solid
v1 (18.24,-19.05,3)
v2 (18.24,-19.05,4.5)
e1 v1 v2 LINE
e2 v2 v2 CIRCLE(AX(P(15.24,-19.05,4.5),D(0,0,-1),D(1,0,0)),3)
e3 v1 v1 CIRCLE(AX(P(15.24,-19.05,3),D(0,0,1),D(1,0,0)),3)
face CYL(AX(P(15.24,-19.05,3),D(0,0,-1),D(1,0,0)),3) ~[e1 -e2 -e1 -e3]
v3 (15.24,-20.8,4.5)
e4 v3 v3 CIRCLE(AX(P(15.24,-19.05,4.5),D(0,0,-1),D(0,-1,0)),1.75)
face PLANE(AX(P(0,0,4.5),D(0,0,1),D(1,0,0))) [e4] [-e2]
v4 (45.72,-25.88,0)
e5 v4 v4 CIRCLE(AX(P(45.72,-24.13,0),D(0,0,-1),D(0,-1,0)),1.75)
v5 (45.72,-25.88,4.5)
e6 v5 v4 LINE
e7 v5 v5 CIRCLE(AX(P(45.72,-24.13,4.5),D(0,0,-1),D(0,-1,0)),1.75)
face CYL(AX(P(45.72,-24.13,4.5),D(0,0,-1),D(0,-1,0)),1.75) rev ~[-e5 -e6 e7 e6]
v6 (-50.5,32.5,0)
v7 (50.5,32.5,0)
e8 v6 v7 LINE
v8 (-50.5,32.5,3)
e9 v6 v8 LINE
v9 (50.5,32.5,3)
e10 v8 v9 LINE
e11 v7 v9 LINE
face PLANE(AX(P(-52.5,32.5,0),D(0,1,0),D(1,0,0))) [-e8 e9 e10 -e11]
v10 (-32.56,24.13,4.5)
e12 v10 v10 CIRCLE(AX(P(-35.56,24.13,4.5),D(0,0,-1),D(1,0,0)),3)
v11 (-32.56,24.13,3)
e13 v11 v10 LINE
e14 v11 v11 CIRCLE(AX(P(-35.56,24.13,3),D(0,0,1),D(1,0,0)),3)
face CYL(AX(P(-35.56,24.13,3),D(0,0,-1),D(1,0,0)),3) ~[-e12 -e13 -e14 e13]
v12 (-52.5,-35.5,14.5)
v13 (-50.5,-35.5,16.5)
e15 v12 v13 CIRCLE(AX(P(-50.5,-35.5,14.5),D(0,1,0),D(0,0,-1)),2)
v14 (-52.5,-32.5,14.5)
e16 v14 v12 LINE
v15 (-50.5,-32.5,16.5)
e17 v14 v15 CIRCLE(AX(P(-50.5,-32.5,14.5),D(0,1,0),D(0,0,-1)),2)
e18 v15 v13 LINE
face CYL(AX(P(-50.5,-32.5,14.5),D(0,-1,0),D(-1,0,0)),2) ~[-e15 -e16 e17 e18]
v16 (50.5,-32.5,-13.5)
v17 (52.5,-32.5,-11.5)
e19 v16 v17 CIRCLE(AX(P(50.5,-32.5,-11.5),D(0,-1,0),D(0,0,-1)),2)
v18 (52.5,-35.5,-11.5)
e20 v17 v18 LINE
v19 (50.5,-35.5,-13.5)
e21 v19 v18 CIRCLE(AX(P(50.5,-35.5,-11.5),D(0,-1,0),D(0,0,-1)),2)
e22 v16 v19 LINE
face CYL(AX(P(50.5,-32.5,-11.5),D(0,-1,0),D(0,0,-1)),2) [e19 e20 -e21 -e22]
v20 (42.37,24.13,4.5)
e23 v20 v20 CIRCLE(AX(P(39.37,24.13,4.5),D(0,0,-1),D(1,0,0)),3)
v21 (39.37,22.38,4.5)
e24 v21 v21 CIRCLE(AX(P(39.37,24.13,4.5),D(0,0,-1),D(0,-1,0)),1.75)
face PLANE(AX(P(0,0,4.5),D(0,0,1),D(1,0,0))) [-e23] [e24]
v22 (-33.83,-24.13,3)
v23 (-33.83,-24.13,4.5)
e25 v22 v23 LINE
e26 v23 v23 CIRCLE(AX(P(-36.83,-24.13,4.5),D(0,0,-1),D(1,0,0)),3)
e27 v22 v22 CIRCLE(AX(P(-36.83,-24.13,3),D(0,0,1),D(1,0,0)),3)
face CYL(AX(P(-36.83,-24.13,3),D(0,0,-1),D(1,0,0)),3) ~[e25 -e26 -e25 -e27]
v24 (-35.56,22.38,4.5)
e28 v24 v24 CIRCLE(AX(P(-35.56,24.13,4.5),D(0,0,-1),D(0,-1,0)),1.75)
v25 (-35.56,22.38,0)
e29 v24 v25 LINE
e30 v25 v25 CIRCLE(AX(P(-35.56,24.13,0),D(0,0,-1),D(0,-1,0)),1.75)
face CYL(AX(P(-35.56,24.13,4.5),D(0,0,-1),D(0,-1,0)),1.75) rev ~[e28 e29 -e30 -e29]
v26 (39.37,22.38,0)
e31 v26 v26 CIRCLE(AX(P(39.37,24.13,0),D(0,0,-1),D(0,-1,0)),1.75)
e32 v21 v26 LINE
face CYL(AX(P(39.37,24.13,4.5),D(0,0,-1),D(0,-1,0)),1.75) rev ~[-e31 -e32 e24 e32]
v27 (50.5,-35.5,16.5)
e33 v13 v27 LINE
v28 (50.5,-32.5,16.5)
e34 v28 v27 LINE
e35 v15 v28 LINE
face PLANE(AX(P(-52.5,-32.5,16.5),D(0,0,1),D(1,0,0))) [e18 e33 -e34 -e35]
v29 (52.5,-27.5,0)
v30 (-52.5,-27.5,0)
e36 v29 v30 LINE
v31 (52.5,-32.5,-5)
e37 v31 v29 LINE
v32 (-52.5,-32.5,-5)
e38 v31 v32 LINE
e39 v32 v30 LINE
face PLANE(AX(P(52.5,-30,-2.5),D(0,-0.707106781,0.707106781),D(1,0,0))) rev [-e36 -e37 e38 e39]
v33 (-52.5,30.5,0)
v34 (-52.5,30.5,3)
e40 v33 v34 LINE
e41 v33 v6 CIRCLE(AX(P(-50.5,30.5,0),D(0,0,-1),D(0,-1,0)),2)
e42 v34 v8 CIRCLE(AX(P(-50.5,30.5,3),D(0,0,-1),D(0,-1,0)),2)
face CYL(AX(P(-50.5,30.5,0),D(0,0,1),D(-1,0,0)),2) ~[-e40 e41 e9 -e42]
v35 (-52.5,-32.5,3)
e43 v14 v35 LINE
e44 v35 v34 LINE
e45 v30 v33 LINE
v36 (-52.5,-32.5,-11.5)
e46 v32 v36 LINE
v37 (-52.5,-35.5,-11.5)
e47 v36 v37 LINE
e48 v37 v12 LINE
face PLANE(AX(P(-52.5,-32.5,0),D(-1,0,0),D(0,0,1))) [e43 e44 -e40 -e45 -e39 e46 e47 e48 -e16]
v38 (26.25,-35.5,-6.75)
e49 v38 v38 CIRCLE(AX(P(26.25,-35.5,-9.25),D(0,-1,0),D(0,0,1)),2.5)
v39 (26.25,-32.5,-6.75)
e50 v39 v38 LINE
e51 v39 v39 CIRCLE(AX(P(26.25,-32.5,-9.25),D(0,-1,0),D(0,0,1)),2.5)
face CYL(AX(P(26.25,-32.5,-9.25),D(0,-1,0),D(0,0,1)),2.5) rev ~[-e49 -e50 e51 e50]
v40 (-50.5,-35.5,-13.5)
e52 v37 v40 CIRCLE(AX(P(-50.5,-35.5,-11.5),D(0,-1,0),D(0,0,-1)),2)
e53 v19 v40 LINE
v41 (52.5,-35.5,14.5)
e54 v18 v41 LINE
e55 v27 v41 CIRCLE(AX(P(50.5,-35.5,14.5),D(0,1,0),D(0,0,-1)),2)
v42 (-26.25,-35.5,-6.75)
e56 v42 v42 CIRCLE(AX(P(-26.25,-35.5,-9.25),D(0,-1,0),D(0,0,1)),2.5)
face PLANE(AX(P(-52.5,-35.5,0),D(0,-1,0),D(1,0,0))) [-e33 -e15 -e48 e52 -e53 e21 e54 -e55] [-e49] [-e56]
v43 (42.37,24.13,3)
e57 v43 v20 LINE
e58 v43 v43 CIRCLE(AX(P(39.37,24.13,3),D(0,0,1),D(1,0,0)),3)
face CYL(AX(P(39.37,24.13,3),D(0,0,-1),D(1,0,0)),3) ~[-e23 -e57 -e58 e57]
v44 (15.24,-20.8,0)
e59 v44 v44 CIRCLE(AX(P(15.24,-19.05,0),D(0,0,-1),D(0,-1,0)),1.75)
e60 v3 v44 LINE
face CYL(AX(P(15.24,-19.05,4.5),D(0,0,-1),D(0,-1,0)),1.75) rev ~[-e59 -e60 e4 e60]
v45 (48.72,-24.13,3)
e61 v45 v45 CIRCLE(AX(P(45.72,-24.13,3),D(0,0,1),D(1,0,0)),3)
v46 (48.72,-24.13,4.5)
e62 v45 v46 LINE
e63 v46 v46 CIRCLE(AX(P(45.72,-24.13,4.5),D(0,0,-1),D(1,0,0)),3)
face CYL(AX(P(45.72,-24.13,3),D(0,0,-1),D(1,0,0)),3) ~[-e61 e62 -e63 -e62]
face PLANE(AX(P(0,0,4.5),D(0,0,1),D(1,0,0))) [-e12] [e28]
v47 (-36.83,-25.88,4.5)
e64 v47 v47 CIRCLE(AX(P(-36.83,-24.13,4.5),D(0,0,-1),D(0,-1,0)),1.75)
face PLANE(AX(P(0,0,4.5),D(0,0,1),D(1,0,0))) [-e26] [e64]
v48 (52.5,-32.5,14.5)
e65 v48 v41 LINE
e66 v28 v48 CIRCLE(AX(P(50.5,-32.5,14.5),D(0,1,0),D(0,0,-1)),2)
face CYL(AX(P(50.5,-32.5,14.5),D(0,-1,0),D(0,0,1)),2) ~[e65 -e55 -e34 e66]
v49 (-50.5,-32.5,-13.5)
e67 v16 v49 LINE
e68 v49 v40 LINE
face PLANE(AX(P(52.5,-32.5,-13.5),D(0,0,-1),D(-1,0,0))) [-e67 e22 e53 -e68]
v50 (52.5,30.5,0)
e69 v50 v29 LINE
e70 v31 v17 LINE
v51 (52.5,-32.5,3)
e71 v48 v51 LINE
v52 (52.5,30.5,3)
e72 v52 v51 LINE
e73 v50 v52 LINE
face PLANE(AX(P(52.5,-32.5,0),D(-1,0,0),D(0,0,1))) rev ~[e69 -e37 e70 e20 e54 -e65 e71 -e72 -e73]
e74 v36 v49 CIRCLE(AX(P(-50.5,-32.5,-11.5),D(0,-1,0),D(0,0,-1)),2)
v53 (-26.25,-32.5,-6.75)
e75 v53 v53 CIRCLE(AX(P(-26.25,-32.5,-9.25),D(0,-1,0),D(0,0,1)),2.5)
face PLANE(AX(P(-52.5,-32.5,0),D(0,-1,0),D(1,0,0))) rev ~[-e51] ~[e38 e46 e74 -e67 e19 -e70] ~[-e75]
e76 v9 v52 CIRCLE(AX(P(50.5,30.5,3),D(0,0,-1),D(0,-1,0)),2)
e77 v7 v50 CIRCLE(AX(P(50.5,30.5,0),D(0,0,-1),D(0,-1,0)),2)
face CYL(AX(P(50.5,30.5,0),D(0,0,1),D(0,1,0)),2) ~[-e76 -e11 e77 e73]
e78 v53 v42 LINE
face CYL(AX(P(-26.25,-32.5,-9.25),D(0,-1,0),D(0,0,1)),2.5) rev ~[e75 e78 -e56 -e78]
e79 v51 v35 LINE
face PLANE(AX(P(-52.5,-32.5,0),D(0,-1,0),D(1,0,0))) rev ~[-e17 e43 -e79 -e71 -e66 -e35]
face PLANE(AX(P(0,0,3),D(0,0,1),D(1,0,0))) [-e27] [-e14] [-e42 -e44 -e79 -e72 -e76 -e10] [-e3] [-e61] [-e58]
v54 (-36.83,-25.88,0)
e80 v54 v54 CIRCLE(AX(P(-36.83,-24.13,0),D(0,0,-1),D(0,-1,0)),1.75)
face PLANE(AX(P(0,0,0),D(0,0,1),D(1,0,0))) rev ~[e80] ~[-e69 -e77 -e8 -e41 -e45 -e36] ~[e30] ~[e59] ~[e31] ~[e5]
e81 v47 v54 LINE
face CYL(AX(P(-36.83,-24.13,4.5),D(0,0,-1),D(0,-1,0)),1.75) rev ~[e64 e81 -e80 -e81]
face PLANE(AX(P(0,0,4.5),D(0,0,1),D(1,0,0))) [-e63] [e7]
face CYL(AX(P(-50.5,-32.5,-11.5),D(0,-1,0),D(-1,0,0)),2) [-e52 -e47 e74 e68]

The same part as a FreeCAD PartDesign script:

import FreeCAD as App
import Part
import Sketcher

V = App.Vector
Q = App.Units.Quantity


def edges_at(feature, points):
    """Names of the edges that pass closest to the given points."""
    edges = feature.Shape.Edges
    near = lambda p: min(range(len(edges)), key=lambda i: edges[i].distToShape(Part.Vertex(*p))[0])
    return sorted({f"Edge{near(p) + 1}" for p in points})


def add_polygon(sketch, points):
    """Adds a closed chain of lines whose ends are joined by coincident constraints."""
    first, n = sketch.GeometryCount, len(points)
    for a, b in zip(points, points[1:] + points[:1]):
        sketch.addGeometry(Part.LineSegment(App.Vector(*a, 0), App.Vector(*b, 0)), False)
    for i in range(n):
        sketch.addConstraint(Sketcher.Constraint("Coincident", first + i, 2, first + (i + 1) % n, 1))

doc = App.newDocument("Part")
body = doc.addObject("PartDesign::Body", "Body")

# Sketch on XY plane
sketch1 = doc.addObject("Sketcher::SketchObject", "Sketch")
body.addObject(sketch1)
sketch1.AttachmentSupport = (doc.XY_Plane, [""])
sketch1.MapMode = "FlatFace"
add_polygon(sketch1, [(52, 32), (-52, 32), (-52, -32), (52, -32)])  # lines 0-3
sketch1.addConstraint([
    Sketcher.Constraint("Horizontal", 0),
    Sketcher.Constraint("Vertical", 1),
    Sketcher.Constraint("Horizontal", 2),
    Sketcher.Constraint("Vertical", 3),
    Sketcher.Constraint("Symmetric", 0, 2, 2, 2, -1, 1),
    Sketcher.Constraint("DistanceX", 0, 2, 0, 1, Q("105 mm")),
    Sketcher.Constraint("DistanceY", 1, 2, 1, 1, Q("65 mm")),
])
pad1 = doc.addObject("PartDesign::Pad", "Pad")
body.addObject(pad1)
pad1.Profile = sketch1
pad1.Length = 3

# Sketch on XY plane
sketch2 = doc.addObject("Sketcher::SketchObject", "Sketch001")
body.addObject(sketch2)
sketch2.AttachmentSupport = (doc.XY_Plane, [""])
sketch2.MapMode = "FlatFace"
sketch2.AttachmentOffset = App.Placement(V(0, 0, 3), App.Rotation())
sketch2.addGeometry([
    Part.Circle(V(-35.6, 24.1, 0), V(0, 0, 1), 3),  # 0
    Part.Circle(V(39.4, 24.1, 0), V(0, 0, 1), 3),  # 1
    Part.Circle(V(-36.8, -24.1, 0), V(0, 0, 1), 3),  # 2
    Part.Circle(V(15.2, -19.1, 0), V(0, 0, 1), 3),  # 3
    Part.Circle(V(45.7, -24.1, 0), V(0, 0, 1), 3),  # 4
], False)
sketch2.addConstraint([
    Sketcher.Constraint("Equal", 0, 1),
    Sketcher.Constraint("Equal", 1, 2),
    Sketcher.Constraint("Equal", 2, 3),
    Sketcher.Constraint("Equal", 3, 4),
    Sketcher.Constraint("Horizontal", 0, 3, 1, 3),
    Sketcher.Constraint("Horizontal", 2, 3, 4, 3),
    Sketcher.Constraint("Diameter", 0, Q("6 mm")),
    Sketcher.Constraint("DistanceX", 0, 3, 3, 3, Q("50.8 mm")),
    Sketcher.Constraint("DistanceX", -1, 1, 3, 3, Q("15.24 mm")),
    Sketcher.Constraint("DistanceX", 2, 3, 1, 3, Q("76.2 mm")),
    Sketcher.Constraint("DistanceY", -1, 1, 0, 3, Q("24.13 mm")),
    Sketcher.Constraint("DistanceX", -1, 1, 1, 3, Q("39.37 mm")),
    Sketcher.Constraint("DistanceY", 2, 3, -1, 1, Q("24.13 mm")),
    Sketcher.Constraint("DistanceY", 3, 3, -1, 1, Q("19.05 mm")),
    Sketcher.Constraint("DistanceX", -1, 1, 4, 3, Q("45.72 mm")),
])
pad2 = doc.addObject("PartDesign::Pad", "Pad001")
body.addObject(pad2)
pad2.Profile = sketch2
pad2.Length = 1.5

# Sketch on XY plane
sketch3 = doc.addObject("Sketcher::SketchObject", "Sketch002")
body.addObject(sketch3)
sketch3.AttachmentSupport = (doc.XY_Plane, [""])
sketch3.MapMode = "FlatFace"
sketch3.AttachmentOffset = App.Placement(V(0, 0, 4.5), App.Rotation())
sketch3.addGeometry([
    Part.Circle(V(-35.6, 24.1, 0), V(0, 0, 1), 1.8),  # 0
    Part.Circle(V(39.4, 24.1, 0), V(0, 0, 1), 1.8),  # 1
    Part.Circle(V(45.7, -24.1, 0), V(0, 0, 1), 1.8),  # 2
    Part.Circle(V(15.2, -19.1, 0), V(0, 0, 1), 1.8),  # 3
    Part.Circle(V(-36.8, -24.1, 0), V(0, 0, 1), 1.8),  # 4
], False)
sketch3.addConstraint([
    Sketcher.Constraint("Equal", 0, 1),
    Sketcher.Constraint("Equal", 1, 2),
    Sketcher.Constraint("Equal", 2, 3),
    Sketcher.Constraint("Equal", 3, 4),
    Sketcher.Constraint("Horizontal", 0, 3, 1, 3),
    Sketcher.Constraint("Horizontal", 2, 3, 4, 3),
    Sketcher.Constraint("Diameter", 0, Q("3.5 mm")),
    Sketcher.Constraint("DistanceX", 0, 3, 3, 3, Q("50.8 mm")),
    Sketcher.Constraint("DistanceX", 4, 3, 1, 3, Q("76.2 mm")),
    Sketcher.Constraint("DistanceX", 0, 3, -1, 1, Q("35.56 mm")),
    Sketcher.Constraint("DistanceY", -1, 1, 0, 3, Q("24.13 mm")),
    Sketcher.Constraint("DistanceX", -1, 1, 1, 3, Q("39.37 mm")),
    Sketcher.Constraint("DistanceX", -1, 1, 2, 3, Q("45.72 mm")),
    Sketcher.Constraint("DistanceY", 2, 3, -1, 1, Q("24.13 mm")),
    Sketcher.Constraint("DistanceY", 3, 3, -1, 1, Q("19.05 mm")),
])
doc.recompute()
hole = doc.addObject("PartDesign::Hole", "Hole")
body.addObject(hole)
hole.Profile = sketch3
hole.ThreadType = "None"
hole.Diameter = 3.5
hole.DepthType = "ThroughAll"

# Sketch on XZ plane
sketch4 = doc.addObject("Sketcher::SketchObject", "Sketch003")
body.addObject(sketch4)
sketch4.AttachmentSupport = (doc.XZ_Plane, [""])
sketch4.MapMode = "FlatFace"
sketch4.AttachmentOffset = App.Placement(V(0, 0, 32.5), App.Rotation())
add_polygon(sketch4, [(-52, -14), (52, -14), (52, 16), (-52, 16)])  # lines 0-3
sketch4.addConstraint([
    Sketcher.Constraint("Horizontal", 0),
    Sketcher.Constraint("Vertical", 1),
    Sketcher.Constraint("Horizontal", 2),
    Sketcher.Constraint("Vertical", 3),
    Sketcher.Constraint("DistanceY", 1, 1, 1, 2, Q("30 mm")),
    Sketcher.Constraint("DistanceX", 0, 1, 0, 2, Q("105 mm")),
    Sketcher.Constraint("DistanceX", -1, 1, 0, 2, Q("52.5 mm")),
    Sketcher.Constraint("DistanceY", 0, 2, -1, 1, Q("13.5 mm")),
])
pad3 = doc.addObject("PartDesign::Pad", "Pad002")
body.addObject(pad3)
pad3.Profile = sketch4
pad3.Length = 3
doc.recompute()

chamfer = doc.addObject("PartDesign::Chamfer", "Chamfer")
body.addObject(chamfer)
chamfer.Base = (pad3, edges_at(pad3, [(0, -32.5, 0)]))
chamfer.Size = 5

# Sketch on XZ plane
sketch5 = doc.addObject("Sketcher::SketchObject", "Sketch004")
body.addObject(sketch5)
sketch5.AttachmentSupport = (doc.XZ_Plane, [""])
sketch5.MapMode = "FlatFace"
sketch5.AttachmentOffset = App.Placement(V(0, 0, 32.5), App.Rotation())
sketch5.addGeometry([
    Part.Circle(V(26.2, -9.2, 0), V(0, 0, 1), 2.5),
    Part.Circle(V(-26.2, -9.2, 0), V(0, 0, 1), 2.5),
], False)
sketch5.addConstraint([
    Sketcher.Constraint("Equal", 0, 1),
    Sketcher.Constraint("Symmetric", 0, 3, 1, 3, -2),
    Sketcher.Constraint("Diameter", 0, Q("5 mm")),
    Sketcher.Constraint("DistanceX", 1, 3, 0, 3, Q("52.5 mm")),
    Sketcher.Constraint("DistanceY", 0, 3, -1, 1, Q("9.25 mm")),
])
doc.recompute()
hole2 = doc.addObject("PartDesign::Hole", "Hole001")
body.addObject(hole2)
hole2.Profile = sketch5
hole2.ThreadType = "None"
hole2.Diameter = 5
hole2.DepthType = "ThroughAll"
hole2.Reversed = True
doc.recompute()

fillet = doc.addObject("PartDesign::Fillet", "Fillet")
body.addObject(fillet)
fillet.Base = (hole2, edges_at(hole2, [
    (-52.5, 32.5, 1.5),
    (-52.5, -34, 16.5),
    (-52.5, -34, -13.5),
    (52.5, -34, -13.5),
    (52.5, -34, 16.5),
    (52.5, 32.5, 1.5),
]))
fillet.Radius = 2

doc.recompute()
